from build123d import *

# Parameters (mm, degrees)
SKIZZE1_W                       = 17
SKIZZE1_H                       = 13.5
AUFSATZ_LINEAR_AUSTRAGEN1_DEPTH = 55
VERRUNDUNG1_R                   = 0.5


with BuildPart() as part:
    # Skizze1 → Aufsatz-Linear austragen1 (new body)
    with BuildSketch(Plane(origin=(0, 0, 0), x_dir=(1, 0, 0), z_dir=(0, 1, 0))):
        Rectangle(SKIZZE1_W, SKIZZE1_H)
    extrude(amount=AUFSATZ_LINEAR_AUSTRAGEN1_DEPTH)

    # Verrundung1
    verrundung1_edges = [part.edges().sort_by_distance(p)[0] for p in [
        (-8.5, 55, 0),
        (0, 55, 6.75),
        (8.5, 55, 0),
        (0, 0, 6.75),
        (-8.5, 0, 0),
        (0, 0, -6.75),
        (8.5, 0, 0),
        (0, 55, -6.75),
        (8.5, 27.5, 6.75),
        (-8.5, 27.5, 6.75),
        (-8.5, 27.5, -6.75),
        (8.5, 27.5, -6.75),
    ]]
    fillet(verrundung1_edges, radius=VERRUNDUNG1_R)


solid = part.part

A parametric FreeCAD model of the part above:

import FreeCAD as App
import Part
import Sketcher


def add_polygon(sketch, points):
    """Adds a closed chain of lines whose ends are joined by coincident constraints."""
    first, n = sketch.GeometryCount, len(points)
    for a, b in zip(points, points[1:] + points[:1]):
        sketch.addGeometry(Part.LineSegment(App.Vector(*a, 0), App.Vector(*b, 0)), False)
    for i in range(n):
        sketch.addConstraint(Sketcher.Constraint("Coincident", first + i, 2, first + (i + 1) % n, 1))

doc = App.newDocument("Part")
body = doc.addObject("PartDesign::Body", "Body")

# Sketch on XZ plane
sketch1 = body.newObject("Sketcher::SketchObject", "Sketch")
sketch1.AttachmentSupport = (doc.getObject("XZ_Plane"), [""])
sketch1.MapMode = "FlatFace"
add_polygon(sketch1, [(-8, -7), (-8, 7), (8, 7), (8, -7)])  # lines 0-3
sketch1.addConstraint(Sketcher.Constraint("Vertical", 0))
sketch1.addConstraint(Sketcher.Constraint("Horizontal", 1))
sketch1.addConstraint(Sketcher.Constraint("Vertical", 2))
sketch1.addConstraint(Sketcher.Constraint("Horizontal", 3))
sketch1.addConstraint(Sketcher.Constraint("Symmetric", 0, 2, 2, 2, -1, 1))
sketch1.addConstraint(Sketcher.Constraint("DistanceX", 1, 1, 1, 2, 17.0))
sketch1.addConstraint(Sketcher.Constraint("DistanceY", 0, 1, 0, 2, 13.5))
pad1 = body.newObject("PartDesign::Pad", "Pad")
pad1.Profile = sketch1
pad1.Length = 55
pad1.Reversed = True
doc.recompute()

fillet = body.newObject("PartDesign::Fillet", "Fillet")
fillet.Base = (pad1, ["Edge1"])
fillet.UseAllEdges = True
fillet.Radius = 0.5

doc.recompute()
